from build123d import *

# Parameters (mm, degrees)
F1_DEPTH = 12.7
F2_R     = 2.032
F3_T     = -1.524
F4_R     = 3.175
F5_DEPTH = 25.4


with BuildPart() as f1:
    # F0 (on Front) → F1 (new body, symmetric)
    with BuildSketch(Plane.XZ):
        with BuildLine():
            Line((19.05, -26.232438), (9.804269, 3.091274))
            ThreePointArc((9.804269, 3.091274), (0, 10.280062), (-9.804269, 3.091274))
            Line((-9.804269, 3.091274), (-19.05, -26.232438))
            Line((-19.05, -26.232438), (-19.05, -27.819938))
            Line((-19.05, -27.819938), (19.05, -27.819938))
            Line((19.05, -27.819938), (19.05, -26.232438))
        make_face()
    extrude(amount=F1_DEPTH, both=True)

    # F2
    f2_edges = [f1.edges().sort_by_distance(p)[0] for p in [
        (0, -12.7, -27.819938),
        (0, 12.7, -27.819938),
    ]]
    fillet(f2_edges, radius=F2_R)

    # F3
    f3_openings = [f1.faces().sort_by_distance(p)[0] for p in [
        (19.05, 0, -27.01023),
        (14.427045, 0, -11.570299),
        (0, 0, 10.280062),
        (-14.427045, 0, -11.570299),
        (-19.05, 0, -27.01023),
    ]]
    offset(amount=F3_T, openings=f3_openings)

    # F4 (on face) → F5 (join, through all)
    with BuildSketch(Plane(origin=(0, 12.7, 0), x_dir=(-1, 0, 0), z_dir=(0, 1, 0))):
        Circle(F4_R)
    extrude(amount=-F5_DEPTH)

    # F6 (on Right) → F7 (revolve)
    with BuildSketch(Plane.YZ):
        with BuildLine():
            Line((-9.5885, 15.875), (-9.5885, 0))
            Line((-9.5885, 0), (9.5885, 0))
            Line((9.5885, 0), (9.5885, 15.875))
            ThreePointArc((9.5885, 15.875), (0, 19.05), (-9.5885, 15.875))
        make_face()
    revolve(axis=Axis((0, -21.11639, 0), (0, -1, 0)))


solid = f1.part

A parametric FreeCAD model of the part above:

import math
import FreeCAD as App
import Part
import Sketcher

V = App.Vector
Q = App.Units.Quantity


def edges_at(feature, points):
    """Names of the edges that pass closest to the given points."""
    edges = feature.Shape.Edges
    near = lambda p: min(range(len(edges)), key=lambda i: edges[i].distToShape(Part.Vertex(*p))[0])
    return sorted({f"Edge{near(p) + 1}" for p in points})


def faces_at(feature, points):
    """Names of the faces that lie closest to the given points."""
    faces = feature.Shape.Faces
    near = lambda p: min(range(len(faces)), key=lambda i: faces[i].distToShape(Part.Vertex(*p))[0])
    return sorted({f"Face{near(p) + 1}" for p in points})

doc = App.newDocument("Part")
body = doc.addObject("PartDesign::Body", "Body")

# Sketch on XZ plane
sketch1 = body.newObject("Sketcher::SketchObject", "Sketch")
sketch1.AttachmentSupport = (doc.getObject("XZ_Plane"), [""])
sketch1.MapMode = "FlatFace"
sketch1.addGeometry([
    Part.LineSegment(V(19.1, -26.2, 0), V(9.8, 3.1, 0)),  # 0
    Part.ArcOfCircle(Part.Circle(V(0, 0, 0), V(0, 0, 1), 10.3), math.radians(17), math.radians(163)),  # 1
    Part.LineSegment(V(-9.8, 3.1, 0), V(-19.1, -26.2, 0)),  # 2
    Part.LineSegment(V(-19.1, -26.2, 0), V(-19.1, -27.8, 0)),  # 3
    Part.LineSegment(V(-19.1, -27.8, 0), V(19.1, -27.8, 0)),  # 4
    Part.LineSegment(V(19.1, -27.8, 0), V(19.1, -26.2, 0)),  # 5
], False)
sketch1.addConstraint([
    Sketcher.Constraint("Tangent", 0, 2, 1, 1),
    Sketcher.Constraint("Tangent", 1, 2, 2, 1),
    Sketcher.Constraint("Coincident", 2, 2, 3, 1),
    Sketcher.Constraint("Coincident", 3, 2, 4, 1),
    Sketcher.Constraint("Coincident", 4, 2, 5, 1),
    Sketcher.Constraint("Coincident", 5, 2, 0, 1),
    Sketcher.Constraint("Vertical", 3),
    Sketcher.Constraint("Horizontal", 4),
    Sketcher.Constraint("Vertical", 5),
    Sketcher.Constraint("Coincident", 1, 3, -1, 1),
    Sketcher.Constraint("Symmetric", 2, 2, 5, 2, -2),
    Sketcher.Constraint("DistanceX", 4, 1, 4, 2, Q("1.5 in")),
    Sketcher.Constraint("Angle", 0, Q("107.5 deg")),
    Sketcher.Constraint("DistanceY", 3, 2, 3, 1, Q("0.0625 in")),
    Sketcher.Constraint("Radius", 1, Q("10.280061 mm")),
])
pad1 = body.newObject("PartDesign::Pad", "Pad")
pad1.Profile = sketch1
pad1.Length = Q("1 in")
pad1.Midplane = True
doc.recompute()

fillet = body.newObject("PartDesign::Fillet", "Fillet")
fillet.Base = (pad1, edges_at(pad1, [(0, -12.7, -27.82), (0, 12.7, -27.82)]))
fillet.Radius = Q("0.08 in")
doc.recompute()

thickness = body.newObject("PartDesign::Thickness", "Thickness")
thickness.Base = (fillet, faces_at(fillet, [
    (19.05, 0, -27.026),
    (14.427, 0, -11.571),
    (0, 0, 10.28),
    (-14.427, 0, -11.571),
    (-19.05, 0, -27.026),
]))
thickness.Value = Q("0.06 in")
thickness.Reversed = True
thickness.Join = "Arc"

# Sketch on XZ plane
sketch2 = body.newObject("Sketcher::SketchObject", "Sketch001")
sketch2.AttachmentSupport = (doc.getObject("XZ_Plane"), [""])
sketch2.MapMode = "FlatFace"
sketch2.AttachmentOffset = App.Placement(V(0, 0, -0.5 * 25.4), App.Rotation())
sketch2.addGeometry(Part.Circle(V(0, 0, 0), V(0, 0, 1), 3.2), False)
sketch2.addConstraint([
    Sketcher.Constraint("Coincident", 0, 3, -1, 1),
    Sketcher.Constraint("Diameter", 0, Q("0.25 in")),
])
pad2 = body.newObject("PartDesign::Pad", "Pad001")
pad2.Profile = sketch2
pad2.Type = "UpToLast"

# Sketch on YZ plane
sketch3 = body.newObject("Sketcher::SketchObject", "Sketch002")
sketch3.AttachmentSupport = (doc.getObject("YZ_Plane"), [""])
sketch3.MapMode = "FlatFace"
sketch3.addGeometry([
    Part.LineSegment(V(-10, 16, 0), V(-10, 0, 0)),
    Part.LineSegment(V(-10, 0, 0), V(10, 0, 0)),
    Part.LineSegment(V(10, 0, 0), V(10, 16, 0)),
    Part.ArcOfCircle(Part.Circle(V(0, 3, 0), V(0, 0, 1), 16), math.radians(53), math.radians(127)),
], False)
sketch3.addConstraint([
    Sketcher.Constraint("Coincident", 0, 2, 1, 1),
    Sketcher.Constraint("Coincident", 1, 2, 2, 1),
    Sketcher.Constraint("Coincident", 2, 2, 3, 1),
    Sketcher.Constraint("Coincident", 3, 2, 0, 1),
    Sketcher.Constraint("Vertical", 0),
    Sketcher.Constraint("Horizontal", 1),
    Sketcher.Constraint("Vertical", 2),
    Sketcher.Constraint("Symmetric", 0, 2, 1, 2, -1, 1),
    Sketcher.Constraint("PointOnObject", 3, 3, -2),
    Sketcher.Constraint("DistanceX", 1, 1, 1, 2, Q("0.755 in")),
    Sketcher.Constraint("DistanceY", 0, 2, 0, 1, Q("0.625 in")),
    Sketcher.Constraint("Radius", 3, Q("16.066135 mm")),
])
revolution = body.newObject("PartDesign::Revolution", "Revolution")
revolution.Profile = sketch3
revolution.ReferenceAxis = (sketch3, ["H_Axis"])
revolution.Angle = 360

doc.recompute()
